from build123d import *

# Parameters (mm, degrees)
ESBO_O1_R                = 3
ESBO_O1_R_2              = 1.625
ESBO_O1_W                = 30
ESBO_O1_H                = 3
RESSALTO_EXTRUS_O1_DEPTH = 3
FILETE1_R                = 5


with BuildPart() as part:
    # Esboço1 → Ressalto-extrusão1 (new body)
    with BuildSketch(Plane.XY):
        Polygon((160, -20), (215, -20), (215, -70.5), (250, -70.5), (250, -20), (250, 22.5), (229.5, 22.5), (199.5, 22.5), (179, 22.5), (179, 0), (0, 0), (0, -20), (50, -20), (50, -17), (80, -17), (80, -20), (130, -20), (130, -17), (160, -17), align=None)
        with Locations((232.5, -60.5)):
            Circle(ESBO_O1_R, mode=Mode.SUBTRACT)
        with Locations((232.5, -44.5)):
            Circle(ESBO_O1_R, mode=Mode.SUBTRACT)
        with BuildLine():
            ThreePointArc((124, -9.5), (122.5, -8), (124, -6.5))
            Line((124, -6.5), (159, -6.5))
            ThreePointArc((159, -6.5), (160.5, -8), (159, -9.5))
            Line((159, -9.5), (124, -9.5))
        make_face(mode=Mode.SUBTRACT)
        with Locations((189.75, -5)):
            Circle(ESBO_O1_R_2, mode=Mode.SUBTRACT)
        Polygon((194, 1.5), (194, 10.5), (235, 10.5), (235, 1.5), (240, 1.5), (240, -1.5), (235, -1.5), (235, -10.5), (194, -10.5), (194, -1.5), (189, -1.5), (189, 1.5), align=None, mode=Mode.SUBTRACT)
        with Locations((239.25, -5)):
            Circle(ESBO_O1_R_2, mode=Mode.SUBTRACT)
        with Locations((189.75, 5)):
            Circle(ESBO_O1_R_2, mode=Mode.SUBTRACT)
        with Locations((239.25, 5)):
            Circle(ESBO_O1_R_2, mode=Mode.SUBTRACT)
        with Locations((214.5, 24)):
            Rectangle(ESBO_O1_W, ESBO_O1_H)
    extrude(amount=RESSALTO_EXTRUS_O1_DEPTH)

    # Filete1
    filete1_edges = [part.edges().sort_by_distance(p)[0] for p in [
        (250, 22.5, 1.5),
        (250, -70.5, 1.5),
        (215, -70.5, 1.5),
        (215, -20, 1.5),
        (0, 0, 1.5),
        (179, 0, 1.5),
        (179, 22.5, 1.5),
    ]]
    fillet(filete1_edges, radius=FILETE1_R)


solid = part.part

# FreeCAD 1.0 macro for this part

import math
import FreeCAD as App
import Part
import Sketcher

V = App.Vector


def edges_at(feature, points):
    """Names of the edges that pass closest to the given points."""
    edges = feature.Shape.Edges
    near = lambda p: min(range(len(edges)), key=lambda i: edges[i].distToShape(Part.Vertex(*p))[0])
    return sorted({f"Edge{near(p) + 1}" for p in points})


def add_polygon(sketch, points):
    """Adds a closed chain of lines whose ends are joined by coincident constraints."""
    first, n = sketch.GeometryCount, len(points)
    for a, b in zip(points, points[1:] + points[:1]):
        sketch.addGeometry(Part.LineSegment(App.Vector(*a, 0), App.Vector(*b, 0)), False)
    for i in range(n):
        sketch.addConstraint(Sketcher.Constraint("Coincident", first + i, 2, first + (i + 1) % n, 1))

doc = App.newDocument("Part")
params = doc.addObject("Spreadsheet::Sheet", "Params")
for row, (alias, value) in enumerate([
    ("sketch1_diameter", "6 mm"),
    ("sketch1_radius", "1.5 mm"),
    ("sketch1_diameter2", "3.25 mm"),
    ("sketch1_width", "55 mm"),
    ("sketch1_width2", "35 mm"),
    ("pad1_length", "3 mm"),
    ("fillet_radius", "5 mm"),
], start=1):
    params.set(f"A{row}", alias)
    params.set(f"B{row}", "=" + value)
    params.setAlias(f"B{row}", alias)

body = doc.addObject("PartDesign::Body", "Body")

sketch1 = body.newObject("Sketcher::SketchObject", "Sketch")
sketch1.AttachmentSupport = (doc.getObject("XY_Plane"), [""])
sketch1.MapMode = "FlatFace"
add_polygon(sketch1, [(160, -20), (215, -20), (215, -70.5), (250, -70.5), (250, 22.5), (229.5, 22.5), (229.5, 25.5), (199.5, 25.5), (199.5, 22.5), (179, 22.5), (179, 0), (0, 0), (0, -20), (50, -20), (50, -17), (80, -17), (80, -20), (130, -20), (130, -17), (160, -17)])
sketch1.addGeometry(Part.Circle(V(232.5, -60.5, 0), V(0, 0, 1), 3), False)
sketch1.addGeometry(Part.Circle(V(232.5, -44.5, 0), V(0, 0, 1), 3), False)
sketch1.addGeometry(Part.LineSegment(V(159, -9.5, 0), V(124, -9.5, 0)), False)
sketch1.addGeometry(Part.ArcOfCircle(Part.Circle(V(124, -8, 0), V(0, 0, 1), 1.5), math.radians(90), math.radians(270)), False)
sketch1.addGeometry(Part.LineSegment(V(124, -6.5, 0), V(159, -6.5, 0)), False)
sketch1.addGeometry(Part.ArcOfCircle(Part.Circle(V(159, -8, 0), V(0, 0, 1), 1.5), math.radians(-90), math.radians(90)), False)
sketch1.addGeometry(Part.Circle(V(189.8, -5, 0), V(0, 0, 1), 1.6), False)
sketch1.addGeometry(Part.Circle(V(189.8, 5, 0), V(0, 0, 1), 1.6), False)
add_polygon(sketch1, [(189, 1.5), (194, 1.5), (194, 10.5), (235, 10.5), (235, 1.5), (240, 1.5), (240, -1.5), (235, -1.5), (235, -10.5), (194, -10.5), (194, -1.5), (189, -1.5)])
sketch1.addGeometry(Part.Circle(V(239.2, -5, 0), V(0, 0, 1), 1.6), False)
sketch1.addGeometry(Part.Circle(V(239.2, 5, 0), V(0, 0, 1), 1.6), False)
sketch1.addConstraint([
    Sketcher.Constraint("Tangent", 22, 2, 23, 2),
    Sketcher.Constraint("Tangent", 23, 1, 24, 1),
    Sketcher.Constraint("Tangent", 24, 2, 25, 2),
    Sketcher.Constraint("Tangent", 25, 1, 22, 1),
    Sketcher.Constraint("Horizontal", 0),
    Sketcher.Constraint("Vertical", 1),
    Sketcher.Constraint("Horizontal", 2),
    Sketcher.Constraint("Vertical", 3),
    Sketcher.Constraint("Horizontal", 4),
    Sketcher.Constraint("Vertical", 5),
    Sketcher.Constraint("Horizontal", 6),
    Sketcher.Constraint("Vertical", 7),
    Sketcher.Constraint("Horizontal", 8),
    Sketcher.Constraint("Vertical", 9),
    Sketcher.Constraint("Horizontal", 10),
    Sketcher.Constraint("Vertical", 11),
    Sketcher.Constraint("Horizontal", 12),
    Sketcher.Constraint("Vertical", 13),
    Sketcher.Constraint("Horizontal", 14),
    Sketcher.Constraint("Vertical", 15),
    Sketcher.Constraint("Horizontal", 16),
    Sketcher.Constraint("Vertical", 17),
    Sketcher.Constraint("Horizontal", 18),
    Sketcher.Constraint("Vertical", 19),
    Sketcher.Constraint("Horizontal", 22),
    Sketcher.Constraint("Horizontal", 24),
    Sketcher.Constraint("Horizontal", 28),
    Sketcher.Constraint("Vertical", 29),
    Sketcher.Constraint("Horizontal", 30),
    Sketcher.Constraint("Vertical", 31),
    Sketcher.Constraint("Horizontal", 32),
    Sketcher.Constraint("Vertical", 33),
    Sketcher.Constraint("Horizontal", 34),
    Sketcher.Constraint("Vertical", 35),
    Sketcher.Constraint("Horizontal", 36),
    Sketcher.Constraint("Vertical", 37),
    Sketcher.Constraint("Horizontal", 38),
    Sketcher.Constraint("Vertical", 39),
    Sketcher.Constraint("Coincident", 10, 2, -1, 1),
    Sketcher.Constraint("Equal", 20, 21),
    Sketcher.Constraint("Equal", 26, 27),
    Sketcher.Constraint("Equal", 27, 40),
    Sketcher.Constraint("Equal", 40, 41),
    Sketcher.Constraint("Symmetric", 26, 3, 27, 3, -1),
    Sketcher.Constraint("Symmetric", 40, 3, 41, 3, -1),
    Sketcher.Constraint("Symmetric", 31, 2, 34, 2, -1),
    Sketcher.Constraint("Symmetric", 29, 2, 36, 2, -1),
    Sketcher.Constraint("Horizontal", 26, 3, 40, 3),
    Sketcher.Constraint("Horizontal", 4, 2, 7, 2),
    Sketcher.Constraint("Horizontal", 0, 2, 11, 2),
    Sketcher.Constraint("Horizontal", 12, 2, 15, 2),
    Sketcher.Constraint("Horizontal", 14, 2, 17, 2),
    Sketcher.Constraint("Horizontal", 28, 2, 31, 2),
    Sketcher.Constraint("Horizontal", 34, 2, 37, 2),
    Sketcher.Constraint("Vertical", 20, 3, 21, 3),
    Sketcher.Constraint("Equal", 4, 8),
    Sketcher.Constraint("Equal", 6, 14),
    Sketcher.Constraint("Equal", 12, 16),
    Sketcher.Constraint("Equal", 14, 18),
    Sketcher.Constraint("Equal", 2, 22),
    Sketcher.Constraint("Equal", 28, 32),
    Sketcher.Constraint("Equal", 7, 13),
    Sketcher.Constraint("Equal", 19, 33),
    Sketcher.Constraint("Diameter", 20, 6.0),
    Sketcher.Constraint("Radius", 23, 1.5),
    Sketcher.Constraint("Diameter", 26, 3.25),
    Sketcher.Constraint("DistanceX", 0, 1, 0, 2, 55.0),
    Sketcher.Constraint("DistanceX", 2, 1, 2, 2, 35.0),
    Sketcher.Constraint("DistanceX", 6, 2, 6, 1, 30.0),
    Sketcher.Constraint("DistanceX", 10, 2, 10, 1, 179.0),
    Sketcher.Constraint("DistanceX", 12, 1, 12, 2, 50.0),
    Sketcher.Constraint("DistanceX", 28, 1, 28, 2, 5.0),
    Sketcher.Constraint("DistanceX", 30, 1, 30, 2, 41.0),
    Sketcher.Constraint("DistanceY", 3, 1, 3, 2, 93.0),
    Sketcher.Constraint("DistanceY", 5, 1, 5, 2, 3.0),
    Sketcher.Constraint("DistanceY", 11, 2, 11, 1, 20.0),
    Sketcher.Constraint("DistanceY", 29, 1, 29, 2, 9.0),
    Sketcher.Constraint("DistanceY", 1, 2, 1, 1, 50.5),
    Sketcher.Constraint("DistanceX", -1, 1, 23, 3, 124.0),
    Sketcher.Constraint("DistanceY", 23, 3, -1, 1, 8.0),
    Sketcher.Constraint("DistanceY", 26, 3, -1, 1, 5.0),
    Sketcher.Constraint("DistanceX", -1, 1, 28, 2, 194.0),
    Sketcher.Constraint("DistanceY", 20, 3, 21, 3, 16.0),
    Sketcher.Constraint("DistanceY", 1, 2, 20, 3, 10.0),
    Sketcher.Constraint("DistanceX", -1, 1, 20, 3, 232.5),
    Sketcher.Constraint("DistanceX", 26, 3, 40, 3, 49.5),
    Sketcher.Constraint("DistanceX", -1, 1, 26, 3, 189.75),
])
sketch1.setExpression("Constraints[95]", "Params.sketch1_diameter")
sketch1.setExpression("Constraints[96]", "Params.sketch1_radius")
sketch1.setExpression("Constraints[97]", "Params.sketch1_diameter2")
sketch1.setExpression("Constraints[98]", "Params.sketch1_width")
sketch1.setExpression("Constraints[99]", "Params.sketch1_width2")
pad1 = body.newObject("PartDesign::Pad", "Pad")
pad1.Profile = sketch1
pad1.setExpression("Length", "Params.pad1_length")
doc.recompute()

fillet = body.newObject("PartDesign::Fillet", "Fillet")
fillet.Base = (pad1, edges_at(pad1, [
    (250, 22.5, 1.5),
    (250, -70.5, 1.5),
    (215, -70.5, 1.5),
    (215, -20, 1.5),
    (0, 0, 1.5),
    (179, 0, 1.5),
    (179, 22.5, 1.5),
]))
fillet.setExpression("Radius", "Params.fillet_radius")

doc.recompute()
